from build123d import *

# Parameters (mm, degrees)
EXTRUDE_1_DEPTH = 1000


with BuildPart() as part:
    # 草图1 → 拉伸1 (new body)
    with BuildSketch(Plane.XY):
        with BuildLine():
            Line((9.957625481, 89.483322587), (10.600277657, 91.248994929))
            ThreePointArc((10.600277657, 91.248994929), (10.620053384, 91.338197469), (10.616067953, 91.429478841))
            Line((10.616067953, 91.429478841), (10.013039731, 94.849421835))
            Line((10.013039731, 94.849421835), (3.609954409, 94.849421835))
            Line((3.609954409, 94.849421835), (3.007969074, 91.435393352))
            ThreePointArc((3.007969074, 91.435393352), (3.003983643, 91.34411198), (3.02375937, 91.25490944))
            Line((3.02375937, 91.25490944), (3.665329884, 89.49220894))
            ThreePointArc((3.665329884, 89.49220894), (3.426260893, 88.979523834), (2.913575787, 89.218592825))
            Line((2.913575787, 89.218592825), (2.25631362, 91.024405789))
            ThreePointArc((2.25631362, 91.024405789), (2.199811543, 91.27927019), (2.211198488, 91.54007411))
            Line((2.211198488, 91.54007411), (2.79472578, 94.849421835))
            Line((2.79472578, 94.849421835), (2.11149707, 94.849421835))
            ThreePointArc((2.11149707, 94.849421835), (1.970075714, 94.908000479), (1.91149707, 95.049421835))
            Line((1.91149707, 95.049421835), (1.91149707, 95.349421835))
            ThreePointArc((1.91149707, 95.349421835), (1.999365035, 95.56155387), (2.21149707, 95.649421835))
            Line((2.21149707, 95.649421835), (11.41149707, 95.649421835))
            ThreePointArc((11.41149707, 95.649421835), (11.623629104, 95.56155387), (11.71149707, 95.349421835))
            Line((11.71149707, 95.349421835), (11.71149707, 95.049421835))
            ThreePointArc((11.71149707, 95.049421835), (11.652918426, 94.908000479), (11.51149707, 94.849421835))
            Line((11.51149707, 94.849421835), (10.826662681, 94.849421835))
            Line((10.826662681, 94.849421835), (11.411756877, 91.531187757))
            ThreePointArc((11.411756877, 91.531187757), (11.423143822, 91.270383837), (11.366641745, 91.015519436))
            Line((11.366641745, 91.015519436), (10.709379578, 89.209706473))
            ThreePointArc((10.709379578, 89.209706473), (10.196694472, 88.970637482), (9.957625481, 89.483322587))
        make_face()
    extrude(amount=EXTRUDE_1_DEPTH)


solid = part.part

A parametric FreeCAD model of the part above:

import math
import FreeCAD as App
import Part
import Sketcher

V = App.Vector
Q = App.Units.Quantity

doc = App.newDocument("Part")
body = doc.addObject("PartDesign::Body", "Body")

sketch1 = body.newObject("Sketcher::SketchObject", "Sketch")
sketch1.AttachmentSupport = (doc.getObject("XY_Plane"), [""])
sketch1.MapMode = "FlatFace"
sketch1.addGeometry([
    Part.LineSegment(V(10.6, 91.25, 0), V(9.96, 89.48, 0)),
    Part.ArcOfCircle(Part.Circle(V(10.33, 89.35, 0), V(0, 0, 1), 0.4), math.radians(160), math.radians(340)),
    Part.LineSegment(V(10.71, 89.21, 0), V(11.37, 91.02, 0)),
    Part.ArcOfCircle(Part.Circle(V(10.43, 91.36, 0), V(0, 0, 1), 1), math.radians(-20), math.radians(10)),
    Part.LineSegment(V(11.41, 91.53, 0), V(10.83, 94.85, 0)),
    Part.LineSegment(V(10.83, 94.85, 0), V(11.51, 94.85, 0)),
    Part.ArcOfCircle(Part.Circle(V(11.51, 95.05, 0), V(0, 0, 1), 0.2), math.radians(-90), math.radians(0)),
    Part.LineSegment(V(11.71, 95.05, 0), V(11.71, 95.35, 0)),
    Part.ArcOfCircle(Part.Circle(V(11.41, 95.35, 0), V(0, 0, 1), 0.3), math.radians(0), math.radians(90)),
    Part.LineSegment(V(11.41, 95.65, 0), V(2.21, 95.65, 0)),
    Part.ArcOfCircle(Part.Circle(V(2.21, 95.35, 0), V(0, 0, 1), 0.3), math.radians(90), math.radians(180)),
    Part.LineSegment(V(1.91, 95.35, 0), V(1.91, 95.05, 0)),
    Part.ArcOfCircle(Part.Circle(V(2.11, 95.05, 0), V(0, 0, 1), 0.2), math.radians(-180), math.radians(-90)),
    Part.LineSegment(V(2.11, 94.85, 0), V(2.79, 94.85, 0)),
    Part.LineSegment(V(2.79, 94.85, 0), V(2.21, 91.54, 0)),
    Part.ArcOfCircle(Part.Circle(V(3.2, 91.37, 0), V(0, 0, 1), 1), math.radians(170), math.radians(200)),
    Part.LineSegment(V(2.26, 91.02, 0), V(2.91, 89.22, 0)),
    Part.ArcOfCircle(Part.Circle(V(3.29, 89.36, 0), V(0, 0, 1), 0.4), math.radians(-160), math.radians(20)),
    Part.LineSegment(V(3.67, 89.49, 0), V(3.02, 91.25, 0)),
    Part.ArcOfCircle(Part.Circle(V(3.35, 91.37, 0), V(0, 0, 1), 0.35), math.radians(170), math.radians(200)),
    Part.LineSegment(V(3.01, 91.44, 0), V(3.61, 94.85, 0)),
    Part.LineSegment(V(3.61, 94.85, 0), V(10.01, 94.85, 0)),
    Part.LineSegment(V(10.01, 94.85, 0), V(10.62, 91.43, 0)),
    Part.ArcOfCircle(Part.Circle(V(10.27, 91.37, 0), V(0, 0, 1), 0.35), math.radians(-20), math.radians(10)),
], False)
sketch1.addConstraint([
    Sketcher.Constraint("Tangent", 0, 2, 1, 1),
    Sketcher.Constraint("Tangent", 1, 2, 2, 1),
    Sketcher.Constraint("Tangent", 2, 2, 3, 1),
    Sketcher.Constraint("Tangent", 3, 2, 4, 1),
    Sketcher.Constraint("Coincident", 4, 2, 5, 1),
    Sketcher.Constraint("Tangent", 5, 2, 6, 1),
    Sketcher.Constraint("Tangent", 6, 2, 7, 1),
    Sketcher.Constraint("Tangent", 7, 2, 8, 1),
    Sketcher.Constraint("Tangent", 8, 2, 9, 1),
    Sketcher.Constraint("Tangent", 9, 2, 10, 1),
    Sketcher.Constraint("Tangent", 10, 2, 11, 1),
    Sketcher.Constraint("Tangent", 11, 2, 12, 1),
    Sketcher.Constraint("Tangent", 12, 2, 13, 1),
    Sketcher.Constraint("Coincident", 13, 2, 14, 1),
    Sketcher.Constraint("Tangent", 14, 2, 15, 1),
    Sketcher.Constraint("Tangent", 15, 2, 16, 1),
    Sketcher.Constraint("Tangent", 16, 2, 17, 1),
    Sketcher.Constraint("Tangent", 17, 2, 18, 1),
    Sketcher.Constraint("Tangent", 18, 2, 19, 2),
    Sketcher.Constraint("Tangent", 19, 1, 20, 1),
    Sketcher.Constraint("Coincident", 20, 2, 21, 1),
    Sketcher.Constraint("Coincident", 21, 2, 22, 1),
    Sketcher.Constraint("Tangent", 22, 2, 23, 2),
    Sketcher.Constraint("Tangent", 23, 1, 0, 1),
    Sketcher.Constraint("Horizontal", 5),
    Sketcher.Constraint("Vertical", 7),
    Sketcher.Constraint("Horizontal", 9),
    Sketcher.Constraint("Vertical", 11),
    Sketcher.Constraint("Horizontal", 13),
    Sketcher.Constraint("Horizontal", 21),
    Sketcher.Constraint("Equal", 8, 10),
    Sketcher.Constraint("Equal", 6, 12),
    Sketcher.Constraint("Equal", 3, 15),
    Sketcher.Constraint("Equal", 1, 17),
    Sketcher.Constraint("Equal", 19, 23),
    Sketcher.Constraint("Parallel", 0, 2),
    Sketcher.Constraint("Parallel", 16, 18),
    Sketcher.Constraint("Parallel", 14, 20),
    Sketcher.Constraint("Parallel", 4, 22),
    Sketcher.Constraint("Horizontal", 6, 3, 12, 3),
    Sketcher.Constraint("Horizontal", 13, 2, 20, 2),
    Sketcher.Constraint("Equal", 2, 16),
    Sketcher.Constraint("Radius", 3, Q("1 mm")),
    Sketcher.Constraint("Radius", 1, Q("0.4 mm")),
    Sketcher.Constraint("Radius", 6, Q("0.2 mm")),
    Sketcher.Constraint("Radius", 8, Q("0.3 mm")),
    Sketcher.Constraint("Angle", 0, Q("-110 deg")),
    Sketcher.Constraint("Angle", 4, Q("100 deg")),
    Sketcher.Constraint("Angle", 14, Q("-100 deg")),
    Sketcher.Constraint("Angle", 16, Q("-70 deg")),
    Sketcher.Constraint("Radius", 19, Q("0.35 mm")),
    Sketcher.Constraint("DistanceX", 9, 2, 9, 1, Q("9.2 mm")),
    Sketcher.Constraint("DistanceY", 7, 1, 7, 2, Q("0.3 mm")),
    Sketcher.Constraint("Distance", 14, Q("3.3604 mm")),
    Sketcher.Constraint("Distance", 22, Q("3.472701 mm")),
    Sketcher.Constraint("DistanceX", 13, 1, 13, 2, Q("0.683229 mm")),
    Sketcher.Constraint("DistanceY", -1, 1, 17, 3, Q("89.355401 mm")),
    Sketcher.Constraint("DistanceY", -1, 1, 23, 3, Q("91.368702 mm")),
    Sketcher.Constraint("DistanceX", -1, 1, 14, 2, Q("2.211198 mm")),
    Sketcher.Constraint("DistanceX", 17, 3, 19, 3, Q("0.063199 mm")),
    Sketcher.Constraint("DistanceY", 0, 2, 6, 3, Q("5.566099 mm")),
    Sketcher.Constraint("DistanceX", 5, 1, 5, 2, Q("0.684834 mm")),
])
pad1 = body.newObject("PartDesign::Pad", "Pad")
pad1.Profile = sketch1
pad1.Length = 1000

doc.recompute()
